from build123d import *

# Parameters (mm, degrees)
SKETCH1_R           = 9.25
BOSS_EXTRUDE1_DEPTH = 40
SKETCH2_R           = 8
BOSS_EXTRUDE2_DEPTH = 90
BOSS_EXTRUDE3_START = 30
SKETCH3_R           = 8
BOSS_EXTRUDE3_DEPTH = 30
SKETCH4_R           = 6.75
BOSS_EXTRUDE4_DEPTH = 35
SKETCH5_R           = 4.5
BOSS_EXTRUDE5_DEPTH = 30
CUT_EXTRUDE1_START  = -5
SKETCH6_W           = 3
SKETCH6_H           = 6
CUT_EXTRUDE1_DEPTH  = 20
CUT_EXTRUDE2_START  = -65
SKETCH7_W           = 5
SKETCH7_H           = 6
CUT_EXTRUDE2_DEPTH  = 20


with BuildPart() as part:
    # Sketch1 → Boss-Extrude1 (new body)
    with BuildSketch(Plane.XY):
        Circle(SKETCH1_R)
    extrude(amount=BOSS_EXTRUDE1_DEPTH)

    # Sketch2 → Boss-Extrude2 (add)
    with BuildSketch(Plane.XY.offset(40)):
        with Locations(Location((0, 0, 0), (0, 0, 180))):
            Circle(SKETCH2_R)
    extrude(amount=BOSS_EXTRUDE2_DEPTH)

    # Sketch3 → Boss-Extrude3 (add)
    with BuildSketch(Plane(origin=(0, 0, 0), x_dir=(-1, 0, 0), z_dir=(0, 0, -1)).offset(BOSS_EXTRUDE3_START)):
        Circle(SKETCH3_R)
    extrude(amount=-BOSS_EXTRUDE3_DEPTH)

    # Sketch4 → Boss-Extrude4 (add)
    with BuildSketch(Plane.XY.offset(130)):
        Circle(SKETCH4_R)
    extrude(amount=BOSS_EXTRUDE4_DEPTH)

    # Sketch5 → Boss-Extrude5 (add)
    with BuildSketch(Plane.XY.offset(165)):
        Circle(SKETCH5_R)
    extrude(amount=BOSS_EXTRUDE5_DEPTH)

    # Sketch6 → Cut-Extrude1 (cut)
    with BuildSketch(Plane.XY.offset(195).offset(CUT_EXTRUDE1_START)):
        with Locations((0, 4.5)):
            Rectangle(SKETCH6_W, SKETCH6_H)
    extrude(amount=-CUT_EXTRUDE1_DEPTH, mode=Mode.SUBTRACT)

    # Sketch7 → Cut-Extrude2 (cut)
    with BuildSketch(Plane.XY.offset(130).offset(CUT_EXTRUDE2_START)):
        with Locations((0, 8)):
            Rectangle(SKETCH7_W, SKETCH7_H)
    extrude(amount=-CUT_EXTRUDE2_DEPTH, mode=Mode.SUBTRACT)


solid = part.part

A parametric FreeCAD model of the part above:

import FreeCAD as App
import Part
import Sketcher
from FreeCAD import Vector

doc = App.newDocument("Part")
params = doc.addObject("Spreadsheet::Sheet", "Params")
for row, (alias, value) in enumerate([
    ("sketch1_diameter", "18.5 mm"),
    ("pad1_length", "40 mm"),
    ("sketch2_diameter", "16 mm"),
    ("pad2_length", "90 mm"),
    ("sketch3_diameter", "16 mm"),
    ("pad3_length", "30 mm"),
    ("sketch4_diameter", "13.5 mm"),
    ("pad4_length", "35 mm"),
    ("sketch5_diameter", "9 mm"),
    ("pad5_length", "30 mm"),
    ("sketch6_width", "3 mm"),
    ("sketch6_height", "6 mm"),
    ("pocket1_length", "20 mm"),
    ("sketch7_width", "5 mm"),
    ("sketch7_height", "6 mm"),
    ("pocket2_length", "20 mm"),
], start=1):
    params.set(f"A{row}", alias)
    params.set(f"B{row}", "=" + value)
    params.setAlias(f"B{row}", alias)

body = doc.addObject("PartDesign::Body", "Body")

sketch1 = body.newObject("Sketcher::SketchObject", "Sketch")
sketch1.AttachmentSupport = (doc.getObject("XY_Plane"), [""])
sketch1.MapMode = "FlatFace"
sketch1.addGeometry(Part.Circle(Vector(0, 0, 0), Vector(0, 0, 1), 9.25), False)
sketch1.addConstraint(Sketcher.Constraint("Coincident", 0, 3, -1, 1))
sketch1.addConstraint(Sketcher.Constraint("Diameter", 0, 18.5))
sketch1.setExpression("Constraints[1]", "Params.sketch1_diameter")
pad1 = body.newObject("PartDesign::Pad", "Pad")
pad1.Profile = sketch1
pad1.setExpression("Length", "Params.pad1_length")

sketch2 = body.newObject("Sketcher::SketchObject", "Sketch001")
sketch2.AttachmentSupport = (doc.getObject("XY_Plane"), [""])
sketch2.MapMode = "FlatFace"
sketch2.AttachmentOffset = App.Placement(Vector(0, 0, 40), App.Rotation())
sketch2.addGeometry(Part.Circle(Vector(0, 0, 0), Vector(0, 0, 1), 8), False)
sketch2.addConstraint(Sketcher.Constraint("Coincident", 0, 3, -1, 1))
sketch2.addConstraint(Sketcher.Constraint("Diameter", 0, 16.0))
sketch2.setExpression("Constraints[1]", "Params.sketch2_diameter")
pad2 = body.newObject("PartDesign::Pad", "Pad001")
pad2.Profile = sketch2
pad2.setExpression("Length", "Params.pad2_length")

sketch3 = body.newObject("Sketcher::SketchObject", "Sketch002")
sketch3.AttachmentSupport = (doc.getObject("XY_Plane"), [""])
sketch3.MapMode = "FlatFace"
sketch3.AttachmentOffset = App.Placement(Vector(0, 0, -30), App.Rotation())
sketch3.addGeometry(Part.Circle(Vector(0, 0, 0), Vector(0, 0, 1), 8), False)
sketch3.addConstraint(Sketcher.Constraint("Coincident", 0, 3, -1, 1))
sketch3.addConstraint(Sketcher.Constraint("Diameter", 0, 16.0))
sketch3.setExpression("Constraints[1]", "Params.sketch3_diameter")
pad3 = body.newObject("PartDesign::Pad", "Pad002")
pad3.Profile = sketch3
pad3.setExpression("Length", "Params.pad3_length")

sketch4 = body.newObject("Sketcher::SketchObject", "Sketch003")
sketch4.AttachmentSupport = (doc.getObject("XY_Plane"), [""])
sketch4.MapMode = "FlatFace"
sketch4.AttachmentOffset = App.Placement(Vector(0, 0, 130), App.Rotation())
sketch4.addGeometry(Part.Circle(Vector(0, 0, 0), Vector(0, 0, 1), 6.75), False)
sketch4.addConstraint(Sketcher.Constraint("Coincident", 0, 3, -1, 1))
sketch4.addConstraint(Sketcher.Constraint("Diameter", 0, 13.5))
sketch4.setExpression("Constraints[1]", "Params.sketch4_diameter")
pad4 = body.newObject("PartDesign::Pad", "Pad003")
pad4.Profile = sketch4
pad4.setExpression("Length", "Params.pad4_length")

sketch5 = body.newObject("Sketcher::SketchObject", "Sketch004")
sketch5.AttachmentSupport = (doc.getObject("XY_Plane"), [""])
sketch5.MapMode = "FlatFace"
sketch5.AttachmentOffset = App.Placement(Vector(0, 0, 165), App.Rotation())
sketch5.addGeometry(Part.Circle(Vector(0, 0, 0), Vector(0, 0, 1), 4.5), False)
sketch5.addConstraint(Sketcher.Constraint("Coincident", 0, 3, -1, 1))
sketch5.addConstraint(Sketcher.Constraint("Diameter", 0, 9.0))
sketch5.setExpression("Constraints[1]", "Params.sketch5_diameter")
pad5 = body.newObject("PartDesign::Pad", "Pad004")
pad5.Profile = sketch5
pad5.setExpression("Length", "Params.pad5_length")

sketch6 = body.newObject("Sketcher::SketchObject", "Sketch005")
sketch6.AttachmentSupport = (doc.getObject("XY_Plane"), [""])
sketch6.MapMode = "FlatFace"
sketch6.AttachmentOffset = App.Placement(Vector(0, 0, 190), App.Rotation())
sketch6.addGeometry(Part.LineSegment(Vector(-1.5, 7.5, 0), Vector(-1.5, 1.5, 0)), False)
sketch6.addGeometry(Part.LineSegment(Vector(-1.5, 1.5, 0), Vector(1.5, 1.5, 0)), False)
sketch6.addGeometry(Part.LineSegment(Vector(1.5, 1.5, 0), Vector(1.5, 7.5, 0)), False)
sketch6.addGeometry(Part.LineSegment(Vector(1.5, 7.5, 0), Vector(-1.5, 7.5, 0)), False)
sketch6.addConstraint(Sketcher.Constraint("Coincident", 0, 2, 1, 1))
sketch6.addConstraint(Sketcher.Constraint("Coincident", 1, 2, 2, 1))
sketch6.addConstraint(Sketcher.Constraint("Coincident", 2, 2, 3, 1))
sketch6.addConstraint(Sketcher.Constraint("Coincident", 3, 2, 0, 1))
sketch6.addConstraint(Sketcher.Constraint("Vertical", 0))
sketch6.addConstraint(Sketcher.Constraint("Horizontal", 1))
sketch6.addConstraint(Sketcher.Constraint("Vertical", 2))
sketch6.addConstraint(Sketcher.Constraint("Horizontal", 3))
sketch6.addConstraint(Sketcher.Constraint("DistanceX", 1, 1, 1, 2, 3.0))
sketch6.addConstraint(Sketcher.Constraint("DistanceY", 0, 2, 0, 1, 6.0))
sketch6.addConstraint(Sketcher.Constraint("DistanceX", 0, 2, -1, 1, 1.5))
sketch6.addConstraint(Sketcher.Constraint("DistanceY", -1, 1, 0, 2, 1.5))
sketch6.setExpression("Constraints[8]", "Params.sketch6_width")
sketch6.setExpression("Constraints[9]", "Params.sketch6_height")
pocket1 = body.newObject("PartDesign::Pocket", "Pocket")
pocket1.Profile = sketch6
pocket1.setExpression("Length", "Params.pocket1_length")

sketch7 = body.newObject("Sketcher::SketchObject", "Sketch006")
sketch7.AttachmentSupport = (doc.getObject("XY_Plane"), [""])
sketch7.MapMode = "FlatFace"
sketch7.AttachmentOffset = App.Placement(Vector(0, 0, 65), App.Rotation())
sketch7.addGeometry(Part.LineSegment(Vector(-2.5, 11, 0), Vector(-2.5, 5, 0)), False)
sketch7.addGeometry(Part.LineSegment(Vector(-2.5, 5, 0), Vector(2.5, 5, 0)), False)
sketch7.addGeometry(Part.LineSegment(Vector(2.5, 5, 0), Vector(2.5, 11, 0)), False)
sketch7.addGeometry(Part.LineSegment(Vector(2.5, 11, 0), Vector(-2.5, 11, 0)), False)
sketch7.addConstraint(Sketcher.Constraint("Coincident", 0, 2, 1, 1))
sketch7.addConstraint(Sketcher.Constraint("Coincident", 1, 2, 2, 1))
sketch7.addConstraint(Sketcher.Constraint("Coincident", 2, 2, 3, 1))
sketch7.addConstraint(Sketcher.Constraint("Coincident", 3, 2, 0, 1))
sketch7.addConstraint(Sketcher.Constraint("Vertical", 0))
sketch7.addConstraint(Sketcher.Constraint("Horizontal", 1))
sketch7.addConstraint(Sketcher.Constraint("Vertical", 2))
sketch7.addConstraint(Sketcher.Constraint("Horizontal", 3))
sketch7.addConstraint(Sketcher.Constraint("DistanceX", 1, 1, 1, 2, 5.0))
sketch7.addConstraint(Sketcher.Constraint("DistanceY", 0, 2, 0, 1, 6.0))
sketch7.addConstraint(Sketcher.Constraint("DistanceY", -1, 1, 0, 2, 5.0))
sketch7.addConstraint(Sketcher.Constraint("DistanceX", 0, 2, -1, 1, 2.5))
sketch7.setExpression("Constraints[8]", "Params.sketch7_width")
sketch7.setExpression("Constraints[9]", "Params.sketch7_height")
pocket2 = body.newObject("PartDesign::Pocket", "Pocket001")
pocket2.Profile = sketch7
pocket2.setExpression("Length", "Params.pocket2_length")

doc.recompute()
